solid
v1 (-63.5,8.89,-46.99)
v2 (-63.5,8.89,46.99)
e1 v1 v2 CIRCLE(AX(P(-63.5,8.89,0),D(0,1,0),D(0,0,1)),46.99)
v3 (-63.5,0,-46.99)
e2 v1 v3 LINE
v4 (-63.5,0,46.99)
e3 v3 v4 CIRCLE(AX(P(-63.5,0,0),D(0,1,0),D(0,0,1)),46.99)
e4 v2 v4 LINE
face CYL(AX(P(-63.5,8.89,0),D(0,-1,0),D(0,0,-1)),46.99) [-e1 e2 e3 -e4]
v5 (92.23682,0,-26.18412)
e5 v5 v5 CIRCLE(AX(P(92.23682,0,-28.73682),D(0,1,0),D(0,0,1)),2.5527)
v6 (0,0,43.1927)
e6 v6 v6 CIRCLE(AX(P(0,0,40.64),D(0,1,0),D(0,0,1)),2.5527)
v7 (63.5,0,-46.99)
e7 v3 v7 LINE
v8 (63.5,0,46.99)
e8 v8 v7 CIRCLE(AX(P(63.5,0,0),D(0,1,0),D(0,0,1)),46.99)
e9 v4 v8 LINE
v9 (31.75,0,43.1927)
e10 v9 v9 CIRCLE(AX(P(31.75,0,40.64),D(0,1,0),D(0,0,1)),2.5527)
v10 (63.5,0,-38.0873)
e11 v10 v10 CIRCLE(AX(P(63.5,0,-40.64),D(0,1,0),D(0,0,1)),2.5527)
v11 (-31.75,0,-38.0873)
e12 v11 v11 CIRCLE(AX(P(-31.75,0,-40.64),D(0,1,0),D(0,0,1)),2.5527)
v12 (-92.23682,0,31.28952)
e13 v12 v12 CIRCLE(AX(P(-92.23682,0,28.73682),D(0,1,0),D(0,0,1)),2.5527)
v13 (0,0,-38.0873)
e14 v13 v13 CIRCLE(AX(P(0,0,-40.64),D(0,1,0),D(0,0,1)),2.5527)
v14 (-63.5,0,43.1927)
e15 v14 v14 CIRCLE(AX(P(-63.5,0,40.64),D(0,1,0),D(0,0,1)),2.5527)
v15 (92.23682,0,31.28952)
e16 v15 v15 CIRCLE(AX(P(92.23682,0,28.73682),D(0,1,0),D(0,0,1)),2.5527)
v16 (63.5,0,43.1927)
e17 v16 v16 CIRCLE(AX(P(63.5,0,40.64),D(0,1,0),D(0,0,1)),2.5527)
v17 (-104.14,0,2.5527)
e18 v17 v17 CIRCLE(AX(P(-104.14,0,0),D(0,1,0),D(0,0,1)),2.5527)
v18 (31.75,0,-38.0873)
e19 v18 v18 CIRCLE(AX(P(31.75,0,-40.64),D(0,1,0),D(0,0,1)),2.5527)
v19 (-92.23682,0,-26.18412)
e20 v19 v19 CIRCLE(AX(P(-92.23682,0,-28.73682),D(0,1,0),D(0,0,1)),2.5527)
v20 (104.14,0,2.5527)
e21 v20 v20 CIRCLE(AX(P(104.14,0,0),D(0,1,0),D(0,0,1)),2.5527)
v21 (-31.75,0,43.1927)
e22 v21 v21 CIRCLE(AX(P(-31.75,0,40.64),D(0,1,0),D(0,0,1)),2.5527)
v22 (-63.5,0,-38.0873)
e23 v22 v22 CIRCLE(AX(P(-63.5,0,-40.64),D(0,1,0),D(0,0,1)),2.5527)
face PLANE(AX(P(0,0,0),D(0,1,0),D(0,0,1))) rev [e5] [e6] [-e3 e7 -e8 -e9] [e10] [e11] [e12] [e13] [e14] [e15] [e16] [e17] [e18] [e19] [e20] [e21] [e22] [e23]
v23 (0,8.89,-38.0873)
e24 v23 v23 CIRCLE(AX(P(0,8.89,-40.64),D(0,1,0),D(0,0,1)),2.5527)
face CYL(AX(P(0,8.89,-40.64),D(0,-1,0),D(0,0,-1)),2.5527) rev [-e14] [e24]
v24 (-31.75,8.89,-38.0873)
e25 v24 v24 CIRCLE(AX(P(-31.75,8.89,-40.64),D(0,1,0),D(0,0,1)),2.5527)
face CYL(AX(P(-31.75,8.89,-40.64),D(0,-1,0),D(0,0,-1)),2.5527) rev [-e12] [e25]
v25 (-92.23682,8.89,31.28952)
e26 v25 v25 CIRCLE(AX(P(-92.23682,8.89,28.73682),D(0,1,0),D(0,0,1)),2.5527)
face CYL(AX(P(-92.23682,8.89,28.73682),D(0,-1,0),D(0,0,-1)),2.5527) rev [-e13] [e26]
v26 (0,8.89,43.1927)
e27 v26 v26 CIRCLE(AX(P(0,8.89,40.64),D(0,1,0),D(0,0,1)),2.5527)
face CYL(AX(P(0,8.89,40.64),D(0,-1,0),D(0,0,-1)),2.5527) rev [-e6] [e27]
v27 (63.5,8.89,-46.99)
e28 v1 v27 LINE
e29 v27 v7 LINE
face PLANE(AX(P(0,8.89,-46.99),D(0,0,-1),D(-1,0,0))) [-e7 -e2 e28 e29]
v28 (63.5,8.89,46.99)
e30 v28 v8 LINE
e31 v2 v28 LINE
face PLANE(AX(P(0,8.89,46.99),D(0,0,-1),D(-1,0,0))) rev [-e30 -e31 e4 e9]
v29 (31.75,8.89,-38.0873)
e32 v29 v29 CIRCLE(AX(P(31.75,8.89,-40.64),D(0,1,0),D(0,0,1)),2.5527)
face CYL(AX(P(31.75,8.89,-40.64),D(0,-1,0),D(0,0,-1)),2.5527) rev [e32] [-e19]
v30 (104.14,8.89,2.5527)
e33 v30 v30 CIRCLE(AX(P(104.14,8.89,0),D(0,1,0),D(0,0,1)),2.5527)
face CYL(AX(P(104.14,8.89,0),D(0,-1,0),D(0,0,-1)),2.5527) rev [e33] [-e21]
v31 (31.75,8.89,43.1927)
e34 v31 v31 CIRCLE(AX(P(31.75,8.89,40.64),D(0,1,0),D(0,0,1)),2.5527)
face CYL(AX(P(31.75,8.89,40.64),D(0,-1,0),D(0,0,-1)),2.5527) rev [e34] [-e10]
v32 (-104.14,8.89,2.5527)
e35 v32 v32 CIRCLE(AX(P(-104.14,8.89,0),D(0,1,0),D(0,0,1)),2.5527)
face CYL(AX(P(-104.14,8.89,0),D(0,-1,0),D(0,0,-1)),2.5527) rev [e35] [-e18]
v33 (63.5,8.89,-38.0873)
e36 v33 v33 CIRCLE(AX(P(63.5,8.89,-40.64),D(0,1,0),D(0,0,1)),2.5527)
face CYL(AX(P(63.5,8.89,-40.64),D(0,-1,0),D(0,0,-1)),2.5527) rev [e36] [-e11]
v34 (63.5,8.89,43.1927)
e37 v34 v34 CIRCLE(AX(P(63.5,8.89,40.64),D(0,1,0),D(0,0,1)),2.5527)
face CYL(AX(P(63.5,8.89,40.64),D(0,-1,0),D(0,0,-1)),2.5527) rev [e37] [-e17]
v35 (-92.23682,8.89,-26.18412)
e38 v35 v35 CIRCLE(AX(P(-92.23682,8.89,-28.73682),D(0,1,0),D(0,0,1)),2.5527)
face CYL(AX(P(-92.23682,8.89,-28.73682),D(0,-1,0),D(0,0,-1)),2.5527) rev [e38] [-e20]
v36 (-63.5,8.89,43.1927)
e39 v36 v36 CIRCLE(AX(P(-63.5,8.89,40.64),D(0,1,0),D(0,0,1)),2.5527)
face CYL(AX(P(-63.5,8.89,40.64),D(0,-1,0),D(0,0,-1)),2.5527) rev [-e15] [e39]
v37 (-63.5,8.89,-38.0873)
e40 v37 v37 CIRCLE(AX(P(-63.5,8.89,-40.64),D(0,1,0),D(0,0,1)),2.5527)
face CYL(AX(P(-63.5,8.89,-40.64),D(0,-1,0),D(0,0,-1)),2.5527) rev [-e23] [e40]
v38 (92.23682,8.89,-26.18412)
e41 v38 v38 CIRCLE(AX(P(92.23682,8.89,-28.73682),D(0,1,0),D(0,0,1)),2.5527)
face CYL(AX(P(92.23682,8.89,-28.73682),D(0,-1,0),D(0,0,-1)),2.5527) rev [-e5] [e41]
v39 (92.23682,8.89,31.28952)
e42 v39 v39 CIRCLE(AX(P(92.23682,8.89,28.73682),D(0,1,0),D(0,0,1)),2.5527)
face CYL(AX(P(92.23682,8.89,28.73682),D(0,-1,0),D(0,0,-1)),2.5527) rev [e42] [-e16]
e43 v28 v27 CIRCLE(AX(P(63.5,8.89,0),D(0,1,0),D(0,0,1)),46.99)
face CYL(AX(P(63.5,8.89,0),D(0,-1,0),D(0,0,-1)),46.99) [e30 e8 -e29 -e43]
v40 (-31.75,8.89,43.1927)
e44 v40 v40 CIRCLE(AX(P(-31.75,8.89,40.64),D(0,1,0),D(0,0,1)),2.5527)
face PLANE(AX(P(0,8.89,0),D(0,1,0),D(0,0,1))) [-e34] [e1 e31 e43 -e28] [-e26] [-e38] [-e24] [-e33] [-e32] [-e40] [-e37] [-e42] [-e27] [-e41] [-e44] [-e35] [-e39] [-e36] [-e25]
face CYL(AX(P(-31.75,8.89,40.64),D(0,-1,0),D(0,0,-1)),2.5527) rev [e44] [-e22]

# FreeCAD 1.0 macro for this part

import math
import FreeCAD as App
import Part
import Sketcher
from FreeCAD import Vector
Q = App.Units.Quantity

doc = App.newDocument("Part")
body = doc.addObject("PartDesign::Body", "Body")

# Sketch on XZ plane
sketch1 = body.newObject("Sketcher::SketchObject", "Sketch")
sketch1.AttachmentSupport = (doc.getObject("XZ_Plane"), [""])
sketch1.MapMode = "FlatFace"
sketch1.addGeometry(Part.LineSegment(Vector(63.5, -46.99, 0), Vector(-63.5, -46.99, 0)), False)
sketch1.addGeometry(Part.ArcOfCircle(Part.Circle(Vector(-63.5, 0, 0), Vector(0, 0, 1), 46.99), math.radians(90), math.radians(270)), False)
sketch1.addGeometry(Part.LineSegment(Vector(-63.5, 46.99, 0), Vector(63.5, 46.99, 0)), False)
sketch1.addGeometry(Part.ArcOfCircle(Part.Circle(Vector(63.5, 0, 0), Vector(0, 0, 1), 46.99), math.radians(-90), math.radians(90)), False)
sketch1.addGeometry(Part.Circle(Vector(63.5, 40.64, 0), Vector(0, 0, 1), 2.5527), False)
sketch1.addGeometry(Part.Circle(Vector(92.23682, 28.73682, 0), Vector(0, 0, 1), 2.5527), False)
sketch1.addGeometry(Part.Circle(Vector(31.75, 40.64, 0), Vector(0, 0, 1), 2.5527), False)
sketch1.addGeometry(Part.Circle(Vector(104.14, 0, 0), Vector(0, 0, 1), 2.5527), False)
sketch1.addGeometry(Part.Circle(Vector(0, 40.64, 0), Vector(0, 0, 1), 2.5527), False)
sketch1.addGeometry(Part.Circle(Vector(-31.75, 40.64, 0), Vector(0, 0, 1), 2.5527), False)
sketch1.addGeometry(Part.Circle(Vector(-63.5, 40.64, 0), Vector(0, 0, 1), 2.5527), False)
sketch1.addGeometry(Part.Circle(Vector(-92.23682, 28.73682, 0), Vector(0, 0, 1), 2.5527), False)
sketch1.addGeometry(Part.Circle(Vector(-104.14, 0, 0), Vector(0, 0, 1), 2.5527), False)
sketch1.addGeometry(Part.Circle(Vector(92.23682, -28.73682, 0), Vector(0, 0, 1), 2.5527), False)
sketch1.addGeometry(Part.Circle(Vector(63.5, -40.64, 0), Vector(0, 0, 1), 2.5527), False)
sketch1.addGeometry(Part.Circle(Vector(31.75, -40.64, 0), Vector(0, 0, 1), 2.5527), False)
sketch1.addGeometry(Part.Circle(Vector(0, -40.64, 0), Vector(0, 0, 1), 2.5527), False)
sketch1.addGeometry(Part.Circle(Vector(-31.75, -40.64, 0), Vector(0, 0, 1), 2.5527), False)
sketch1.addGeometry(Part.Circle(Vector(-92.23682, -28.73682, 0), Vector(0, 0, 1), 2.5527), False)
sketch1.addGeometry(Part.Circle(Vector(-63.5, -40.64, 0), Vector(0, 0, 1), 2.5527), False)
sketch1.addConstraint(Sketcher.Constraint("Tangent", 0, 2, 1, 2))
sketch1.addConstraint(Sketcher.Constraint("Tangent", 1, 1, 2, 1))
sketch1.addConstraint(Sketcher.Constraint("Tangent", 2, 2, 3, 2))
sketch1.addConstraint(Sketcher.Constraint("Tangent", 3, 1, 0, 1))
sketch1.addConstraint(Sketcher.Constraint("Horizontal", 0))
sketch1.addConstraint(Sketcher.Constraint("Horizontal", 2))
sketch1.addConstraint(Sketcher.Constraint("Equal", 4, 5))
sketch1.addConstraint(Sketcher.Constraint("Equal", 5, 6))
sketch1.addConstraint(Sketcher.Constraint("Equal", 6, 7))
sketch1.addConstraint(Sketcher.Constraint("Equal", 7, 8))
sketch1.addConstraint(Sketcher.Constraint("Equal", 8, 9))
sketch1.addConstraint(Sketcher.Constraint("Equal", 9, 10))
sketch1.addConstraint(Sketcher.Constraint("Equal", 10, 11))
sketch1.addConstraint(Sketcher.Constraint("Equal", 11, 12))
sketch1.addConstraint(Sketcher.Constraint("Equal", 12, 13))
sketch1.addConstraint(Sketcher.Constraint("Equal", 13, 14))
sketch1.addConstraint(Sketcher.Constraint("Equal", 14, 15))
sketch1.addConstraint(Sketcher.Constraint("Equal", 15, 16))
sketch1.addConstraint(Sketcher.Constraint("Equal", 16, 17))
sketch1.addConstraint(Sketcher.Constraint("Equal", 17, 18))
sketch1.addConstraint(Sketcher.Constraint("Equal", 18, 19))
sketch1.addConstraint(Sketcher.Constraint("Symmetric", 1, 3, 3, 3, -1, 1))
sketch1.addConstraint(Sketcher.Constraint("Symmetric", 7, 3, 12, 3, -1, 1))
sketch1.addConstraint(Sketcher.Constraint("Symmetric", 11, 3, 13, 3, -1, 1))
sketch1.addConstraint(Sketcher.Constraint("Symmetric", 10, 3, 14, 3, -1, 1))
sketch1.addConstraint(Sketcher.Constraint("Symmetric", 9, 3, 15, 3, -1, 1))
sketch1.addConstraint(Sketcher.Constraint("Symmetric", 8, 3, 16, 3, -1, 1))
sketch1.addConstraint(Sketcher.Constraint("Symmetric", 6, 3, 17, 3, -1, 1))
sketch1.addConstraint(Sketcher.Constraint("Symmetric", 5, 3, 18, 3, -1, 1))
sketch1.addConstraint(Sketcher.Constraint("Symmetric", 4, 3, 19, 3, -1, 1))
sketch1.addConstraint(Sketcher.Constraint("Symmetric", 6, 3, 9, 3, -2))
sketch1.addConstraint(Sketcher.Constraint("Symmetric", 4, 3, 10, 3, -2))
sketch1.addConstraint(Sketcher.Constraint("Symmetric", 5, 3, 11, 3, -2))
sketch1.addConstraint(Sketcher.Constraint("PointOnObject", 7, 3, -1))
sketch1.addConstraint(Sketcher.Constraint("PointOnObject", 8, 3, -2))
sketch1.addConstraint(Sketcher.Constraint("Horizontal", 4, 3, 6, 3))
sketch1.addConstraint(Sketcher.Constraint("Horizontal", 6, 3, 8, 3))
sketch1.addConstraint(Sketcher.Constraint("Vertical", 3, 3, 4, 3))
sketch1.addConstraint(Sketcher.Constraint("DistanceX", 0, 2, 0, 1, Q("5 in")))
sketch1.addConstraint(Sketcher.Constraint("Radius", 1, Q("1.85 in")))
sketch1.addConstraint(Sketcher.Constraint("Diameter", 4, Q("0.201 in")))
sketch1.addConstraint(Sketcher.Constraint("DistanceY", -1, 1, 4, 3, Q("1.6 in")))
sketch1.addConstraint(Sketcher.Constraint("DistanceX", -1, 1, 7, 3, Q("4.1 in")))
sketch1.addConstraint(Sketcher.Constraint("DistanceX", 9, 3, 6, 3, Q("2.5 in")))
sketch1.addConstraint(Sketcher.Constraint("DistanceX", -1, 1, 5, 3, 92.23682))
sketch1.addConstraint(Sketcher.Constraint("DistanceY", -1, 1, 5, 3, 28.73682))
pad1 = body.newObject("PartDesign::Pad", "Pad")
pad1.Profile = sketch1
pad1.Length = Q("0.35 in")
pad1.Reversed = True

doc.recompute()
